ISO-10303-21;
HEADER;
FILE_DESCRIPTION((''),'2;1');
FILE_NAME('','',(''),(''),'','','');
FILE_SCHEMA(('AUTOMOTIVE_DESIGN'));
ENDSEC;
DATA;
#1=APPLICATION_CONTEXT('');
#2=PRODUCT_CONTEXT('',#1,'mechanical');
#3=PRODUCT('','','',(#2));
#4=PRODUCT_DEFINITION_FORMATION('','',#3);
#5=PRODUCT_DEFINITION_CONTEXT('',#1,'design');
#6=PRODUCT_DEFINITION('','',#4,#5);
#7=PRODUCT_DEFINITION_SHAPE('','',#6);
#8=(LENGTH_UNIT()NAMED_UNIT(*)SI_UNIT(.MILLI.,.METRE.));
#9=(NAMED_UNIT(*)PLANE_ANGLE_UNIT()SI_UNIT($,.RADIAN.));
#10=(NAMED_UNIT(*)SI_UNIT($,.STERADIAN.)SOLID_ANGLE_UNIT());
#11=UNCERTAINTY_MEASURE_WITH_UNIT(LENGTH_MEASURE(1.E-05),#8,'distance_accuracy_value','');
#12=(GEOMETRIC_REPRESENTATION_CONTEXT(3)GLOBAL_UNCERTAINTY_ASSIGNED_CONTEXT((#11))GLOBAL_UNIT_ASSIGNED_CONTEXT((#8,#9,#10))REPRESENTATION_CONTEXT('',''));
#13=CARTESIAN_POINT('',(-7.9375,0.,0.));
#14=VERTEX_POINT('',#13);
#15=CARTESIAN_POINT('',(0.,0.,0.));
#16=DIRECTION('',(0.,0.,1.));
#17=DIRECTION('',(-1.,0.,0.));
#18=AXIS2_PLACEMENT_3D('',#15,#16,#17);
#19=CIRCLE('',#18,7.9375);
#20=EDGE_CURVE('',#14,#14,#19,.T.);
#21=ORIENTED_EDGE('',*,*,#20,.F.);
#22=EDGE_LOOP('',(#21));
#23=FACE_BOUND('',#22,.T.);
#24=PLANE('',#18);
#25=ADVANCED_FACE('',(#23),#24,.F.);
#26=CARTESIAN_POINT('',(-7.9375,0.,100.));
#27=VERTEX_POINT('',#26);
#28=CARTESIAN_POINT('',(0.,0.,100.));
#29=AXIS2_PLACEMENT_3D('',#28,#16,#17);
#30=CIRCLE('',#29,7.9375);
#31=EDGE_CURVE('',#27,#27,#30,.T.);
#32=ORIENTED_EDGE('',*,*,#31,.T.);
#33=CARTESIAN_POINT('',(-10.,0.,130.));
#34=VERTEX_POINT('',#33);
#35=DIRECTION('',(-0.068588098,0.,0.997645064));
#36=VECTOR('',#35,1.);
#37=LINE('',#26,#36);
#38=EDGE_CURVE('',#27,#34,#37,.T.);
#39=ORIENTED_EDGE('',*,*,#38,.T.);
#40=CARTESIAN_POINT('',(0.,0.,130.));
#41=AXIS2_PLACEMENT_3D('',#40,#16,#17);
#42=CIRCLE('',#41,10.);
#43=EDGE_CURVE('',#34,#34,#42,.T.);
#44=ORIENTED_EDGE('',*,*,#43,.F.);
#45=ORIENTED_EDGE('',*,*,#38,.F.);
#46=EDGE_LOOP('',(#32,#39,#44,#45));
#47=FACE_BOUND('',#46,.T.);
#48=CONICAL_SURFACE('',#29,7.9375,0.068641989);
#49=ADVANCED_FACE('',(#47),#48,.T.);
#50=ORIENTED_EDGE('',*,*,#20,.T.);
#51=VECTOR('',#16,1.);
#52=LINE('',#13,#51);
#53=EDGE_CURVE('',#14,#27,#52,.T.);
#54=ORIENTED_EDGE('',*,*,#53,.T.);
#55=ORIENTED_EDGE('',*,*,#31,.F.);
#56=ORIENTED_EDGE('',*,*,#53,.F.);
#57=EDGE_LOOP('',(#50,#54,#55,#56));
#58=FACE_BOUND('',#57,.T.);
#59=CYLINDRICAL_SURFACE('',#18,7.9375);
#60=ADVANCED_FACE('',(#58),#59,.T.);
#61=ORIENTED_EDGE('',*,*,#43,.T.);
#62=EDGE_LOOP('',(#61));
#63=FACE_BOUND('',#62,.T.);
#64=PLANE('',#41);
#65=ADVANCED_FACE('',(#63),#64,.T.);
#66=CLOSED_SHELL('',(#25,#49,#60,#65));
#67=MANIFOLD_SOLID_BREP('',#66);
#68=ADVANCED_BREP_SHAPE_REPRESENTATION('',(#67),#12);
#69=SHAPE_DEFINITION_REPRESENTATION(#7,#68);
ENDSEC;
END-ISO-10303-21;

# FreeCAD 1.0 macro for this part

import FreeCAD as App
import Part
import Sketcher
from FreeCAD import Vector


def add_polygon(sketch, points):
    """Adds a closed chain of lines whose ends are joined by coincident constraints."""
    first, n = sketch.GeometryCount, len(points)
    for a, b in zip(points, points[1:] + points[:1]):
        sketch.addGeometry(Part.LineSegment(App.Vector(*a, 0), App.Vector(*b, 0)), False)
    for i in range(n):
        sketch.addConstraint(Sketcher.Constraint("Coincident", first + i, 2, first + (i + 1) % n, 1))

doc = App.newDocument("Part")
body = doc.addObject("PartDesign::Body", "Body")

# Sketch on XZ plane
sketch1 = doc.addObject("Sketcher::SketchObject", "Sketch")
body.addObject(sketch1)
sketch1.AttachmentSupport = (doc.XZ_Plane, [""])
sketch1.MapMode = "FlatFace"
add_polygon(sketch1, [(-8, 0), (0, 0), (0, 130), (-10, 130), (-8, 100)])  # lines 0-4
sketch1.addConstraint(Sketcher.Constraint("Horizontal", 0))
sketch1.addConstraint(Sketcher.Constraint("Vertical", 1))
sketch1.addConstraint(Sketcher.Constraint("Horizontal", 2))
sketch1.addConstraint(Sketcher.Constraint("Vertical", 4))
sketch1.addConstraint(Sketcher.Constraint("Coincident", 0, 2, -1, 1))
sketch1.addConstraint(Sketcher.Constraint("DistanceX", 2, 2, 2, 1, 10.0))
sketch1.addConstraint(Sketcher.Constraint("DistanceY", 1, 1, 1, 2, 130.0))
sketch1.addConstraint(Sketcher.Constraint("DistanceY", 4, 2, 4, 1, 100.0))
sketch1.addConstraint(Sketcher.Constraint("DistanceX", 0, 1, 0, 2, 7.9375))
revolution = doc.addObject("PartDesign::Revolution", "Revolution")
body.addObject(revolution)
revolution.Profile = sketch1
revolution.ReferenceAxis = (sketch1, ["V_Axis"])
revolution.Angle = 360

doc.recompute()
